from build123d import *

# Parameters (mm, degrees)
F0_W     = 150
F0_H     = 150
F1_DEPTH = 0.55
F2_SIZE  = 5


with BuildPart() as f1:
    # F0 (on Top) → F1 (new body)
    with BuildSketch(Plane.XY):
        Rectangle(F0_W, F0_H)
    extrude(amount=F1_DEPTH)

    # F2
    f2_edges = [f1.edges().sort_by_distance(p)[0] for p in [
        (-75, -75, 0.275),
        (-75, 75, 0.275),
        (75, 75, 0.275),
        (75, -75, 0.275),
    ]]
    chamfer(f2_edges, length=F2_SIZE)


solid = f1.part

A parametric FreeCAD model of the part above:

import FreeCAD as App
import Part
import Sketcher

V = App.Vector


def edges_at(feature, points):
    """Names of the edges that pass closest to the given points."""
    edges = feature.Shape.Edges
    near = lambda p: min(range(len(edges)), key=lambda i: edges[i].distToShape(Part.Vertex(*p))[0])
    return sorted({f"Edge{near(p) + 1}" for p in points})


def add_polygon(sketch, points):
    """Adds a closed chain of lines whose ends are joined by coincident constraints."""
    first, n = sketch.GeometryCount, len(points)
    for a, b in zip(points, points[1:] + points[:1]):
        sketch.addGeometry(Part.LineSegment(App.Vector(*a, 0), App.Vector(*b, 0)), False)
    for i in range(n):
        sketch.addConstraint(Sketcher.Constraint("Coincident", first + i, 2, first + (i + 1) % n, 1))

doc = App.newDocument("Part")
body = doc.addObject("PartDesign::Body", "Body")

sketch1 = doc.addObject("Sketcher::SketchObject", "Sketch")
body.addObject(sketch1)
sketch1.AttachmentSupport = (doc.XY_Plane, [""])
sketch1.MapMode = "FlatFace"
add_polygon(sketch1, [(-75, 75), (-75, -75), (75, -75), (75, 75)])
sketch1.addConstraint([
    Sketcher.Constraint("Vertical", 0),
    Sketcher.Constraint("Horizontal", 1),
    Sketcher.Constraint("Vertical", 2),
    Sketcher.Constraint("Horizontal", 3),
    Sketcher.Constraint("Symmetric", 0, 2, 2, 2, -1, 1),
    Sketcher.Constraint("Equal", 3, 0),
    Sketcher.Constraint("DistanceX", 1, 1, 1, 2, 150.0),
])
pad1 = doc.addObject("PartDesign::Pad", "Pad")
body.addObject(pad1)
pad1.Profile = sketch1
pad1.Length = 0.55
doc.recompute()

chamfer = doc.addObject("PartDesign::Chamfer", "Chamfer")
body.addObject(chamfer)
chamfer.Base = (pad1, edges_at(pad1, [
    (-75, -75, 0.275),
    (-75, 75, 0.275),
    (75, 75, 0.275),
    (75, -75, 0.275),
]))
chamfer.Size = 5

doc.recompute()
